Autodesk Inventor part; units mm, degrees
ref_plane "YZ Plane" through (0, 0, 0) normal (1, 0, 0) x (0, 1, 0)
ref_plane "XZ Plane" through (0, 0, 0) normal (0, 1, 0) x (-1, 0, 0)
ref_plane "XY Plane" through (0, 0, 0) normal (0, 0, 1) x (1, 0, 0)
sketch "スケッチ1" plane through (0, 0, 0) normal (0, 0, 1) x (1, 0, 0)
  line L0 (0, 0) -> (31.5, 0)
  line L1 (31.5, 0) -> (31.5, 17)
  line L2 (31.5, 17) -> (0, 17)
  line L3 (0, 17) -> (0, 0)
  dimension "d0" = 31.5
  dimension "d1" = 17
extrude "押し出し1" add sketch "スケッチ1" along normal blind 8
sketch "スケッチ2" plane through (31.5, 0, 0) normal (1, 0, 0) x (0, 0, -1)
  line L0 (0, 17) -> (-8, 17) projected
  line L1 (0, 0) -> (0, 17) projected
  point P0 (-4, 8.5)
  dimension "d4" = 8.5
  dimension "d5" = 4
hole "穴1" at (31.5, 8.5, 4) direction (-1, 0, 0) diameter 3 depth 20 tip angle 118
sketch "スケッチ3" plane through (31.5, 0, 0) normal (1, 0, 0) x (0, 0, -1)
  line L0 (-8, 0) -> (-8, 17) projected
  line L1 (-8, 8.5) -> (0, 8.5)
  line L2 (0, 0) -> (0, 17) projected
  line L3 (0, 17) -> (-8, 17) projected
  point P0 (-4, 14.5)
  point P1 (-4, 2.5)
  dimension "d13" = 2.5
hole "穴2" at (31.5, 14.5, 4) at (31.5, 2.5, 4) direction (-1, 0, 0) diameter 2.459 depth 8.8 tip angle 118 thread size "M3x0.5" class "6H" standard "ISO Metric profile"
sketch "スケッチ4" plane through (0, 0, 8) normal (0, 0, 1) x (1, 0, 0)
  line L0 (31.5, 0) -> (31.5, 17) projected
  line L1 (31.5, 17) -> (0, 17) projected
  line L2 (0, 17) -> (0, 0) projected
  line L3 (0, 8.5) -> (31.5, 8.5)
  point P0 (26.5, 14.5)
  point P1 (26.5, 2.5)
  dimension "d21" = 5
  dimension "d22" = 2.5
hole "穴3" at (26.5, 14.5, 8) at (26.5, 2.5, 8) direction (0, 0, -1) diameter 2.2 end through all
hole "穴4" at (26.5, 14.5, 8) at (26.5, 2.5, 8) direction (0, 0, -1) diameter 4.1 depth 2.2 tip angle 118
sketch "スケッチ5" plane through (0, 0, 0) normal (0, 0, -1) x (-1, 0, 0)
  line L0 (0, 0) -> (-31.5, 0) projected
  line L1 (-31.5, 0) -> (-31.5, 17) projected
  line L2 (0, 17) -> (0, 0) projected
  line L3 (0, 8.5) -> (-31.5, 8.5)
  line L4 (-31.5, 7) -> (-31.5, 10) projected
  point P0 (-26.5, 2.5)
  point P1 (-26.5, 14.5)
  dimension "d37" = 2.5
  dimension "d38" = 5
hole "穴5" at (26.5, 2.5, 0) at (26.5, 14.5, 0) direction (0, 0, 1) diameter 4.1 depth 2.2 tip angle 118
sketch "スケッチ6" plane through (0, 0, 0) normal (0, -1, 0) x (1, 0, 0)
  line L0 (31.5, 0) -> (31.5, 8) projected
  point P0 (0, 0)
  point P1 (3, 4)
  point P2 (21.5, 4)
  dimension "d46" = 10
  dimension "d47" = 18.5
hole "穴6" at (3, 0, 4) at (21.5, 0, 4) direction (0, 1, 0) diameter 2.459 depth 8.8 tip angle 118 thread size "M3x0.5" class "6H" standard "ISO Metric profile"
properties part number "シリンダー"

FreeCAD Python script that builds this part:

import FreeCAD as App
import Part
import Sketcher
from FreeCAD import Vector
Q = App.Units.Quantity

doc = App.newDocument("Part")
params = doc.addObject("Spreadsheet::Sheet", "Params")
for row, (alias, value) in enumerate([
    ("sketch1_height", "17 mm"),
    ("sketch1_width", "31.5 mm"),
    ("pad1_length", "8 mm"),
    ("sketch2_diameter", "3 mm"),
    ("hole_diameter", "3 mm"),
    ("hole_depth", "20 mm"),
    ("hole2_diameter", "2.459 mm"),
    ("hole2_depth", "8.8 mm"),
    ("sketch4_diameter", "2.2 mm"),
    ("hole3_diameter", "2.2 mm"),
    ("sketch5_diameter", "4.1 mm"),
    ("hole4_diameter", "4.1 mm"),
    ("hole4_depth", "2.2 mm"),
    ("sketch6_diameter", "4.1 mm"),
    ("hole5_diameter", "4.1 mm"),
    ("hole5_depth", "2.2 mm"),
    ("hole6_diameter", "2.459 mm"),
    ("hole6_depth", "8.8 mm"),
], start=1):
    params.set(f"A{row}", alias)
    params.set(f"B{row}", "=" + value)
    params.setAlias(f"B{row}", alias)

body = doc.addObject("PartDesign::Body", "Body")

sketch1 = body.newObject("Sketcher::SketchObject", "Sketch")
sketch1.AttachmentSupport = (doc.getObject("XY_Plane"), [""])
sketch1.MapMode = "FlatFace"
sketch1.addGeometry([
    Part.LineSegment(Vector(0, 17, 0), Vector(0, 0, 0)),
    Part.LineSegment(Vector(0, 0, 0), Vector(32, 0, 0)),
    Part.LineSegment(Vector(32, 0, 0), Vector(32, 17, 0)),
    Part.LineSegment(Vector(32, 17, 0), Vector(0, 17, 0)),
], False)
sketch1.addConstraint([
    Sketcher.Constraint("Coincident", 0, 2, 1, 1),
    Sketcher.Constraint("Coincident", 1, 2, 2, 1),
    Sketcher.Constraint("Coincident", 2, 2, 3, 1),
    Sketcher.Constraint("Coincident", 3, 2, 0, 1),
    Sketcher.Constraint("Vertical", 0),
    Sketcher.Constraint("Horizontal", 1),
    Sketcher.Constraint("Vertical", 2),
    Sketcher.Constraint("Horizontal", 3),
    Sketcher.Constraint("Coincident", 0, 2, -1, 1),
    Sketcher.Constraint("DistanceY", 0, 2, 0, 1, Q("17 mm")),
    Sketcher.Constraint("DistanceX", 1, 1, 1, 2, Q("31.5 mm")),
])
sketch1.setExpression("Constraints[9]", "Params.sketch1_height")
sketch1.setExpression("Constraints[10]", "Params.sketch1_width")
pad1 = body.newObject("PartDesign::Pad", "Pad")
pad1.Profile = sketch1
pad1.setExpression("Length", "Params.pad1_length")

sketch2 = body.newObject("Sketcher::SketchObject", "Sketch001")
sketch2.AttachmentSupport = (doc.getObject("YZ_Plane"), [""])
sketch2.MapMode = "FlatFace"
sketch2.AttachmentOffset = App.Placement(Vector(0, 0, 31.5), App.Rotation())
sketch2.addGeometry(Part.Circle(Vector(8.5, 4, 0), Vector(0, 0, 1), 1.5), False)
sketch2.addConstraint([
    Sketcher.Constraint("Diameter", 0, Q("3 mm")),
    Sketcher.Constraint("DistanceY", -1, 1, 0, 3, Q("4 mm")),
    Sketcher.Constraint("DistanceX", -1, 1, 0, 3, Q("8.5 mm")),
])
sketch2.setExpression("Constraints[0]", "Params.sketch2_diameter")
doc.recompute()
hole = body.newObject("PartDesign::Hole", "Hole")
hole.Profile = sketch2
hole.ThreadType = "None"
hole.setExpression("Diameter", "Params.hole_diameter")
hole.DepthType = "Dimension"
hole.setExpression("Depth", "Params.hole_depth")
hole.DrillPoint = "Angled"
hole.DrillPointAngle = 118

sketch3 = body.newObject("Sketcher::SketchObject", "Sketch002")
sketch3.AttachmentSupport = (doc.getObject("YZ_Plane"), [""])
sketch3.MapMode = "FlatFace"
sketch3.AttachmentOffset = App.Placement(Vector(0, 0, 31.5), App.Rotation())
sketch3.addGeometry([
    Part.Circle(Vector(14.5, 4, 0), Vector(0, 0, 1), 1.2),
    Part.Circle(Vector(2.5, 4, 0), Vector(0, 0, 1), 1.2),
], False)
sketch3.addConstraint([
    Sketcher.Constraint("Equal", 0, 1),
    Sketcher.Constraint("Horizontal", 0, 3, 1, 3),
    Sketcher.Constraint("Diameter", 0, Q("2.459 mm")),
    Sketcher.Constraint("DistanceY", -1, 1, 0, 3, Q("4 mm")),
    Sketcher.Constraint("DistanceX", 1, 3, 0, 3, Q("12 mm")),
    Sketcher.Constraint("DistanceX", -1, 1, 0, 3, Q("14.5 mm")),
])
doc.recompute()
hole2 = body.newObject("PartDesign::Hole", "Hole001")
hole2.Profile = sketch3
hole2.ThreadType = "None"
hole2.setExpression("Diameter", "Params.hole2_diameter")
hole2.DepthType = "Dimension"
hole2.setExpression("Depth", "Params.hole2_depth")
hole2.DrillPoint = "Angled"
hole2.DrillPointAngle = 118

sketch4 = body.newObject("Sketcher::SketchObject", "Sketch003")
sketch4.AttachmentSupport = (doc.getObject("XY_Plane"), [""])
sketch4.MapMode = "FlatFace"
sketch4.AttachmentOffset = App.Placement(Vector(0, 0, 8), App.Rotation())
sketch4.addGeometry([
    Part.Circle(Vector(26.5, 14.5, 0), Vector(0, 0, 1), 1.1),
    Part.Circle(Vector(26.5, 2.5, 0), Vector(0, 0, 1), 1.1),
], False)
sketch4.addConstraint([
    Sketcher.Constraint("Equal", 0, 1),
    Sketcher.Constraint("Vertical", 0, 3, 1, 3),
    Sketcher.Constraint("Diameter", 0, Q("2.2 mm")),
    Sketcher.Constraint("DistanceY", 1, 3, 0, 3, Q("12 mm")),
    Sketcher.Constraint("DistanceX", -1, 1, 0, 3, Q("26.5 mm")),
    Sketcher.Constraint("DistanceY", -1, 1, 0, 3, Q("14.5 mm")),
])
sketch4.setExpression("Constraints[2]", "Params.sketch4_diameter")
doc.recompute()
hole3 = body.newObject("PartDesign::Hole", "Hole002")
hole3.Profile = sketch4
hole3.ThreadType = "None"
hole3.setExpression("Diameter", "Params.hole3_diameter")
hole3.DepthType = "ThroughAll"

sketch5 = body.newObject("Sketcher::SketchObject", "Sketch004")
sketch5.AttachmentSupport = (doc.getObject("XY_Plane"), [""])
sketch5.MapMode = "FlatFace"
sketch5.AttachmentOffset = App.Placement(Vector(0, 0, 8), App.Rotation())
sketch5.addGeometry([
    Part.Circle(Vector(26.5, 14.5, 0), Vector(0, 0, 1), 2),
    Part.Circle(Vector(26.5, 2.5, 0), Vector(0, 0, 1), 2),
], False)
sketch5.addConstraint([
    Sketcher.Constraint("Equal", 0, 1),
    Sketcher.Constraint("Vertical", 0, 3, 1, 3),
    Sketcher.Constraint("Diameter", 0, Q("4.1 mm")),
    Sketcher.Constraint("DistanceY", 1, 3, 0, 3, Q("12 mm")),
    Sketcher.Constraint("DistanceX", -1, 1, 0, 3, Q("26.5 mm")),
    Sketcher.Constraint("DistanceY", -1, 1, 0, 3, Q("14.5 mm")),
])
sketch5.setExpression("Constraints[2]", "Params.sketch5_diameter")
doc.recompute()
hole4 = body.newObject("PartDesign::Hole", "Hole003")
hole4.Profile = sketch5
hole4.ThreadType = "None"
hole4.setExpression("Diameter", "Params.hole4_diameter")
hole4.DepthType = "Dimension"
hole4.setExpression("Depth", "Params.hole4_depth")
hole4.DrillPoint = "Angled"
hole4.DrillPointAngle = 118

sketch6 = body.newObject("Sketcher::SketchObject", "Sketch005")
sketch6.AttachmentSupport = (doc.getObject("XY_Plane"), [""])
sketch6.MapMode = "FlatFace"
sketch6.addGeometry([
    Part.Circle(Vector(26.5, 2.5, 0), Vector(0, 0, 1), 2),
    Part.Circle(Vector(26.5, 14.5, 0), Vector(0, 0, 1), 2),
], False)
sketch6.addConstraint([
    Sketcher.Constraint("Equal", 0, 1),
    Sketcher.Constraint("Vertical", 0, 3, 1, 3),
    Sketcher.Constraint("Diameter", 0, Q("4.1 mm")),
    Sketcher.Constraint("DistanceY", 0, 3, 1, 3, Q("12 mm")),
    Sketcher.Constraint("DistanceX", -1, 1, 0, 3, Q("26.5 mm")),
    Sketcher.Constraint("DistanceY", -1, 1, 0, 3, Q("2.5 mm")),
])
sketch6.setExpression("Constraints[2]", "Params.sketch6_diameter")
doc.recompute()
hole5 = body.newObject("PartDesign::Hole", "Hole004")
hole5.Profile = sketch6
hole5.ThreadType = "None"
hole5.setExpression("Diameter", "Params.hole5_diameter")
hole5.DepthType = "Dimension"
hole5.setExpression("Depth", "Params.hole5_depth")
hole5.DrillPoint = "Angled"
hole5.DrillPointAngle = 118
hole5.Reversed = True

sketch7 = body.newObject("Sketcher::SketchObject", "Sketch006")
sketch7.AttachmentSupport = (doc.getObject("XZ_Plane"), [""])
sketch7.MapMode = "FlatFace"
sketch7.addGeometry([
    Part.Circle(Vector(3, 4, 0), Vector(0, 0, 1), 1.2),
    Part.Circle(Vector(21.5, 4, 0), Vector(0, 0, 1), 1.2),
], False)
sketch7.addConstraint([
    Sketcher.Constraint("Equal", 0, 1),
    Sketcher.Constraint("Horizontal", 0, 3, 1, 3),
    Sketcher.Constraint("Diameter", 0, Q("2.459 mm")),
    Sketcher.Constraint("DistanceX", -1, 1, 0, 3, Q("3 mm")),
    Sketcher.Constraint("DistanceY", -1, 1, 0, 3, Q("4 mm")),
    Sketcher.Constraint("DistanceX", -1, 1, 1, 3, Q("21.5 mm")),
])
doc.recompute()
hole6 = body.newObject("PartDesign::Hole", "Hole005")
hole6.Profile = sketch7
hole6.ThreadType = "None"
hole6.setExpression("Diameter", "Params.hole6_diameter")
hole6.DepthType = "Dimension"
hole6.setExpression("Depth", "Params.hole6_depth")
hole6.DrillPoint = "Angled"
hole6.DrillPointAngle = 118

doc.recompute()
